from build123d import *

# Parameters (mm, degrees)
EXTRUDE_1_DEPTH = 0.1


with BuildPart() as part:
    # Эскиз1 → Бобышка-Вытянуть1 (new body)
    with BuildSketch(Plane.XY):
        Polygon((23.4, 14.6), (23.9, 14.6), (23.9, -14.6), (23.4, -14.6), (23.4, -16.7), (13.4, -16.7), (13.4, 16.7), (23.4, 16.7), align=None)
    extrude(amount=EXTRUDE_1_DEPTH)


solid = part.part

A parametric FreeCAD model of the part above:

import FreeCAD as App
import Part
import Sketcher
from FreeCAD import Vector

doc = App.newDocument("Part")
body = doc.addObject("PartDesign::Body", "Body")

sketch1 = body.newObject("Sketcher::SketchObject", "Sketch")
sketch1.AttachmentSupport = (doc.getObject("XY_Plane"), [""])
sketch1.MapMode = "FlatFace"
sketch1.addGeometry([
    Part.LineSegment(Vector(23.9, 14.6, 0), Vector(23.4, 14.6, 0)),
    Part.LineSegment(Vector(23.4, 14.6, 0), Vector(23.4, 16.7, 0)),
    Part.LineSegment(Vector(23.4, 16.7, 0), Vector(13.4, 16.7, 0)),
    Part.LineSegment(Vector(13.4, 16.7, 0), Vector(13.4, -16.7, 0)),
    Part.LineSegment(Vector(13.4, -16.7, 0), Vector(23.4, -16.7, 0)),
    Part.LineSegment(Vector(23.4, -16.7, 0), Vector(23.4, -14.6, 0)),
    Part.LineSegment(Vector(23.4, -14.6, 0), Vector(23.9, -14.6, 0)),
    Part.LineSegment(Vector(23.9, -14.6, 0), Vector(23.9, 14.6, 0)),
], False)
sketch1.addConstraint([
    Sketcher.Constraint("Coincident", 0, 2, 1, 1),
    Sketcher.Constraint("Coincident", 1, 2, 2, 1),
    Sketcher.Constraint("Coincident", 2, 2, 3, 1),
    Sketcher.Constraint("Coincident", 3, 2, 4, 1),
    Sketcher.Constraint("Coincident", 4, 2, 5, 1),
    Sketcher.Constraint("Coincident", 5, 2, 6, 1),
    Sketcher.Constraint("Coincident", 6, 2, 7, 1),
    Sketcher.Constraint("Coincident", 7, 2, 0, 1),
    Sketcher.Constraint("Horizontal", 0),
    Sketcher.Constraint("Vertical", 1),
    Sketcher.Constraint("Horizontal", 2),
    Sketcher.Constraint("Vertical", 3),
    Sketcher.Constraint("Horizontal", 4),
    Sketcher.Constraint("Vertical", 5),
    Sketcher.Constraint("Horizontal", 6),
    Sketcher.Constraint("Vertical", 7),
    Sketcher.Constraint("Symmetric", 1, 2, 4, 2, -1),
    Sketcher.Constraint("Equal", 1, 5),
    Sketcher.Constraint("DistanceX", 2, 2, 2, 1, 10.0),
    Sketcher.Constraint("DistanceX", 0, 2, 0, 1, 0.5),
    Sketcher.Constraint("DistanceY", 1, 1, 1, 2, 2.1),
    Sketcher.Constraint("DistanceY", 3, 2, 3, 1, 33.4),
    Sketcher.Constraint("DistanceX", -1, 1, 0, 2, 23.4),
])
pad1 = body.newObject("PartDesign::Pad", "Pad")
pad1.Profile = sketch1
pad1.Length = 0.1

doc.recompute()
